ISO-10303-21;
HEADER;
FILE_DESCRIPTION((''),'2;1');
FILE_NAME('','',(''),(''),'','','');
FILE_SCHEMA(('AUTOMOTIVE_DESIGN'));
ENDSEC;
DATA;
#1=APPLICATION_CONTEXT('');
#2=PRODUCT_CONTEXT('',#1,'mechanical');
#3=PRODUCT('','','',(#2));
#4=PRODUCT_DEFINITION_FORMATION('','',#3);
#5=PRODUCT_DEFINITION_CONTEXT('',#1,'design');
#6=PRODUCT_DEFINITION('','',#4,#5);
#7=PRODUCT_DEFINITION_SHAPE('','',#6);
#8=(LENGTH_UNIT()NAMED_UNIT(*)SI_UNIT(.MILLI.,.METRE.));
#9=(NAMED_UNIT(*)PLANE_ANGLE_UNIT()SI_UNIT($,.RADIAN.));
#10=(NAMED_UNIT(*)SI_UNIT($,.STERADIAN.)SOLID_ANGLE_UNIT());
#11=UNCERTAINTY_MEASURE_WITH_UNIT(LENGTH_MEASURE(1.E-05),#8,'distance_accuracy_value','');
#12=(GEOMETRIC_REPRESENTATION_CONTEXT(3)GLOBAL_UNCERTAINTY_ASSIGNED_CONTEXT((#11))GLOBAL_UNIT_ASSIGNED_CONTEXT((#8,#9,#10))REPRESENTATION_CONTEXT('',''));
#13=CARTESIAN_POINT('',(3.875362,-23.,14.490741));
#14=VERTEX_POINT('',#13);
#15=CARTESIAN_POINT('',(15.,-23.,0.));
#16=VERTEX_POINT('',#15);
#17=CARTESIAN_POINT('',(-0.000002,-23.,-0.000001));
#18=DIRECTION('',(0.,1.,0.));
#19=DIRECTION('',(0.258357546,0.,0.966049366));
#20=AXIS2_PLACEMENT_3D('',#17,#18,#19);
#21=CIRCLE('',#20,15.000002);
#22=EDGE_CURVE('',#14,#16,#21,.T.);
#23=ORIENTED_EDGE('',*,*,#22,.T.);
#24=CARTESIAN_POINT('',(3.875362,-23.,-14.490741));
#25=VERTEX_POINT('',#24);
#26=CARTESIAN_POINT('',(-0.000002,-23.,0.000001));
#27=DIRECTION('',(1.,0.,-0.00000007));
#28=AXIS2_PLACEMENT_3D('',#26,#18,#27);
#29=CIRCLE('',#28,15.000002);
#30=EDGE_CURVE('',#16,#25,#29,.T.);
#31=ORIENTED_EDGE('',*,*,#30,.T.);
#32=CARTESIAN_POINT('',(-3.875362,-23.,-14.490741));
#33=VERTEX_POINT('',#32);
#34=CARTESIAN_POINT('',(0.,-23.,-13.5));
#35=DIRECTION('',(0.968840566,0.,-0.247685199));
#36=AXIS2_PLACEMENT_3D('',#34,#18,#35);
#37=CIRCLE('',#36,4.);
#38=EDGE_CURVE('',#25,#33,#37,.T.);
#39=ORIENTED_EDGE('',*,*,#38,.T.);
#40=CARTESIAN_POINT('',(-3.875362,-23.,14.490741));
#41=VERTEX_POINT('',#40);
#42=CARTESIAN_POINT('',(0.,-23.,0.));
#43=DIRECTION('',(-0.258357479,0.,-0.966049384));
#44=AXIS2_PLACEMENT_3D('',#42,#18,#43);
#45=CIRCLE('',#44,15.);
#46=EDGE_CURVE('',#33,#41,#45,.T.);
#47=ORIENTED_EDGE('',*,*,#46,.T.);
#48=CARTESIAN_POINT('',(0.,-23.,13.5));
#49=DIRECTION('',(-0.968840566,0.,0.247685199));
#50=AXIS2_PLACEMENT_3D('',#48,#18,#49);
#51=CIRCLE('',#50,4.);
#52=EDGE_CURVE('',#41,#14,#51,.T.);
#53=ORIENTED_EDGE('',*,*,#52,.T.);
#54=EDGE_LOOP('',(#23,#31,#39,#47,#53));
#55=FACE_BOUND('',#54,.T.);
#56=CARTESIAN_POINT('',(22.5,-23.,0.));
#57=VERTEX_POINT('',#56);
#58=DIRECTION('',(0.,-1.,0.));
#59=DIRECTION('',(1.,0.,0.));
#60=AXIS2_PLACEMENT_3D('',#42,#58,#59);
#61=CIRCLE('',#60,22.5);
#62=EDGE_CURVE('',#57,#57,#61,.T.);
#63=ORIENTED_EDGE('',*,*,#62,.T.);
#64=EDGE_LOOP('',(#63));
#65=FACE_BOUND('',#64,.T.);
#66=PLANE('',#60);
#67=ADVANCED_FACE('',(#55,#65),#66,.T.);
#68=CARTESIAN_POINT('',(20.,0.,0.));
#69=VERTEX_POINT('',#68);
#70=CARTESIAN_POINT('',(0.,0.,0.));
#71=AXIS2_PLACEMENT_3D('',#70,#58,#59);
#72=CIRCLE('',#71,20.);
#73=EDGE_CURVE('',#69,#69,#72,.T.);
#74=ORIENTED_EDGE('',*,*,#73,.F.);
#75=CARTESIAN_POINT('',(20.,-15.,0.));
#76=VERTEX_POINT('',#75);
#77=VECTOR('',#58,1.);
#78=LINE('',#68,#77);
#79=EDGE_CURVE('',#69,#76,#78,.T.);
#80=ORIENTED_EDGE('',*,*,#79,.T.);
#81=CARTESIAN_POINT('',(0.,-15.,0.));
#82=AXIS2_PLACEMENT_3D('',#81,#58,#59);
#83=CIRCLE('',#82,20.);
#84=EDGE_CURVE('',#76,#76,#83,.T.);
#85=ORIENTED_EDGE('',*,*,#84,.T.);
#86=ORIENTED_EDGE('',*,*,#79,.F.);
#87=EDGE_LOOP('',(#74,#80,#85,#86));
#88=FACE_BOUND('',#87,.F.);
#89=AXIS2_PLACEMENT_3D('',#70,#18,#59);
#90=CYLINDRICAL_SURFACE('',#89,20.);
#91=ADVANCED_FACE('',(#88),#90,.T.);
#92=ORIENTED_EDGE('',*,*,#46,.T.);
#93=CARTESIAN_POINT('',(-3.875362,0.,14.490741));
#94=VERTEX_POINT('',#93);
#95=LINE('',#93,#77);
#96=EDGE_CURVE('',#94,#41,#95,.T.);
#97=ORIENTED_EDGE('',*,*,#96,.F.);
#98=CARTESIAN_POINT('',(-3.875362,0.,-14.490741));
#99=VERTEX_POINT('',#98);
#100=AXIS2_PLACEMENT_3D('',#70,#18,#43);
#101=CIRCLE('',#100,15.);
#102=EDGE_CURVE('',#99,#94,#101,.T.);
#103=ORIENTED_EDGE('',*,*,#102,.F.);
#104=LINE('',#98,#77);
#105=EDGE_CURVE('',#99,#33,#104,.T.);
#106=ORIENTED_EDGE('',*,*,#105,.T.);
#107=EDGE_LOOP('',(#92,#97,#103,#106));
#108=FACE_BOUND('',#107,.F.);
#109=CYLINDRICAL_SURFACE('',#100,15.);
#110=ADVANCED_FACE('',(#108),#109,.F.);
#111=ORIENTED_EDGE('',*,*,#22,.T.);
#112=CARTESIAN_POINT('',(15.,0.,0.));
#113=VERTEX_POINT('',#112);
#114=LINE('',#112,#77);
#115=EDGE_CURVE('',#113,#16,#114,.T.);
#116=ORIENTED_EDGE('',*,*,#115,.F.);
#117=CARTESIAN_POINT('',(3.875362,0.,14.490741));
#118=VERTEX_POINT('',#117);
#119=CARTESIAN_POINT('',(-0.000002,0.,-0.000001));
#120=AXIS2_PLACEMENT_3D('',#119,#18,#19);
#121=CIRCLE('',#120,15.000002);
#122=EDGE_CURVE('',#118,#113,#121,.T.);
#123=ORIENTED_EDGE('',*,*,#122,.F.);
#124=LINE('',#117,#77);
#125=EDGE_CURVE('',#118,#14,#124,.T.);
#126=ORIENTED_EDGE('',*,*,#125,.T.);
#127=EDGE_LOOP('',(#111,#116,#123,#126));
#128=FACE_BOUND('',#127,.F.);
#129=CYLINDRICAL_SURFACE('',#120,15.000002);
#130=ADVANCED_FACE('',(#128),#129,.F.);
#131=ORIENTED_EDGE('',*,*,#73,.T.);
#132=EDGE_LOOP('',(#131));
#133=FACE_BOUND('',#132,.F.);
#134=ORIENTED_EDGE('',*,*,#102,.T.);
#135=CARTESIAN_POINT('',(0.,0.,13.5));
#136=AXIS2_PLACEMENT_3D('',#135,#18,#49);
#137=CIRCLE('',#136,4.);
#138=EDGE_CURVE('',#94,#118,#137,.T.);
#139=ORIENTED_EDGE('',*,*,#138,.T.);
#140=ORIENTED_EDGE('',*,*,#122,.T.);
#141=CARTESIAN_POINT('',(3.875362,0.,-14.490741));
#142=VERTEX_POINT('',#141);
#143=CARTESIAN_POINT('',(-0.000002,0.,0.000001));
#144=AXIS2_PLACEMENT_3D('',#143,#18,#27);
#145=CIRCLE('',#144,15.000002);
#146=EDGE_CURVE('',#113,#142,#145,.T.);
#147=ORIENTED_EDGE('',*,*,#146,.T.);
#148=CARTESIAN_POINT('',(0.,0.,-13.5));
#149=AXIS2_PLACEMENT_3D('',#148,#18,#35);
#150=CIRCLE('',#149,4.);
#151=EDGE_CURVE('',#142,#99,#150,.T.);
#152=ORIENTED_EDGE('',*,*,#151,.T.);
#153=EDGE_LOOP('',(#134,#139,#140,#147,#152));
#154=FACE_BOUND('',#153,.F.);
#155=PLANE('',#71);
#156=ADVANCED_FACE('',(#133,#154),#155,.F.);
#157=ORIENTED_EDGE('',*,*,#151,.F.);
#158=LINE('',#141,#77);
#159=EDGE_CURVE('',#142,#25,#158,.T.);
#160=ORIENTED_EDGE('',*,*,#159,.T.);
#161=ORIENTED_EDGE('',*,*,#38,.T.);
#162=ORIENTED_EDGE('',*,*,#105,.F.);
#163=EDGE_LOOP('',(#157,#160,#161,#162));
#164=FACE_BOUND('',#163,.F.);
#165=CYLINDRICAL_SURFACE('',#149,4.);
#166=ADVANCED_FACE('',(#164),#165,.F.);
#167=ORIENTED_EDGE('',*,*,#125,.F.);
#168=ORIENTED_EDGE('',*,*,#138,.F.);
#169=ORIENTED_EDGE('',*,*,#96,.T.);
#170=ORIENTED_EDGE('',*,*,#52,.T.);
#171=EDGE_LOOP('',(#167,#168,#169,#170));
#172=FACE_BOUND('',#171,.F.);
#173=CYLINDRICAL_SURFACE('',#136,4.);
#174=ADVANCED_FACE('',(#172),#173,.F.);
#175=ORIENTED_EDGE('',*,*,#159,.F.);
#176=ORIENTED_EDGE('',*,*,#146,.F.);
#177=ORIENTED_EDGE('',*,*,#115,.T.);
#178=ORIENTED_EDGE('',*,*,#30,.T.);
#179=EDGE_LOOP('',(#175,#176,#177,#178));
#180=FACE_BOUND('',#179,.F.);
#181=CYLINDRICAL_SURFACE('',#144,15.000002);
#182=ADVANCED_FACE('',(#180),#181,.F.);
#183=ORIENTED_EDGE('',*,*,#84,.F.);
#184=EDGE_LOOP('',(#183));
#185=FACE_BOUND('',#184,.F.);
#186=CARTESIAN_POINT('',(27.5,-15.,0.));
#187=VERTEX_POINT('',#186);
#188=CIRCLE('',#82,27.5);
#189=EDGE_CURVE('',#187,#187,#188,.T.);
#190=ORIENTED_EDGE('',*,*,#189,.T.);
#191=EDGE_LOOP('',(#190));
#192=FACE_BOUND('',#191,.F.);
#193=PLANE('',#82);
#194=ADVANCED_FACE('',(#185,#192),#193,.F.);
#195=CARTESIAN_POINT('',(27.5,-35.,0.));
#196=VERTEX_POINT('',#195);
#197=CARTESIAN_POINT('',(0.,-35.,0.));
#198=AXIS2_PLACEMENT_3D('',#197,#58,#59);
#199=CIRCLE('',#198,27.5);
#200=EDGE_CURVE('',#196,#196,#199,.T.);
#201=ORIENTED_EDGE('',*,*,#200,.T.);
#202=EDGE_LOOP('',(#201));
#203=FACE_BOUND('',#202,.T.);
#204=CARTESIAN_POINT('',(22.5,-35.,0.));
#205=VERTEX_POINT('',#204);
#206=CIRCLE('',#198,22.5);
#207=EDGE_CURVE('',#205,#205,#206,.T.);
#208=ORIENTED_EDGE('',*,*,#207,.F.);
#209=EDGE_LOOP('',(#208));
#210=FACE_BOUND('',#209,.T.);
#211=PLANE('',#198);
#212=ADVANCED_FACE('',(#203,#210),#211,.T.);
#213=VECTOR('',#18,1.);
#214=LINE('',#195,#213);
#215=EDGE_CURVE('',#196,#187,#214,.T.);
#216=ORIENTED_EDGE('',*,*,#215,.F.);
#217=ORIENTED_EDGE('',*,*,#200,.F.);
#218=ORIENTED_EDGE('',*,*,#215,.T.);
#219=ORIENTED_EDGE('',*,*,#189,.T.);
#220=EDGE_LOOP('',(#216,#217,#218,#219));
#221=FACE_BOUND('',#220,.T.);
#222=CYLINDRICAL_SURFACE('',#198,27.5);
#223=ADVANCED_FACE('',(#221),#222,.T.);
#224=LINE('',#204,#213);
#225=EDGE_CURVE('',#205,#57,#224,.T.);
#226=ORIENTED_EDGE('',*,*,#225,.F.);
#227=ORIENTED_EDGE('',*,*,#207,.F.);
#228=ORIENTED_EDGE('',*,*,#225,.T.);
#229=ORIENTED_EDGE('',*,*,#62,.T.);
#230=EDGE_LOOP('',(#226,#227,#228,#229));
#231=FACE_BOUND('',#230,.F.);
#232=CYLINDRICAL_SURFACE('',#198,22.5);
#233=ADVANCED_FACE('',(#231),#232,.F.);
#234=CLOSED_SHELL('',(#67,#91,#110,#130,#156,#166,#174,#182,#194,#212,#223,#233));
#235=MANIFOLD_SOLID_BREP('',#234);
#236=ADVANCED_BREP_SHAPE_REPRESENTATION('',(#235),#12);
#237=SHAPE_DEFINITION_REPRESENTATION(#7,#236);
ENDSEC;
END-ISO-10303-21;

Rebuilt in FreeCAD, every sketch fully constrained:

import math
import FreeCAD as App
import Part
import Sketcher

doc = App.newDocument("Part")
body = doc.addObject("PartDesign::Body", "Body")

sketch1 = doc.addObject("Sketcher::SketchObject", "Sketch")
body.addObject(sketch1)
sketch1.AttachmentSupport = (doc.XZ_Plane, [""])
sketch1.MapMode = "FlatFace"
sketch1.addGeometry(Part.Circle(App.Vector(0, 0, 0), App.Vector(0, 0, 1), 20), False)
sketch1.addGeometry(Part.ArcOfCircle(Part.Circle(App.Vector(0, 13.5, 0), App.Vector(0, 0, 1), 4), math.radians(14.340576), math.radians(165.659424)), False)
sketch1.addGeometry(Part.ArcOfCircle(Part.Circle(App.Vector(-0.000002, -0.000001, 0), App.Vector(0, 0, 1), 15.000002), math.radians(0.000004), math.radians(75.027373)), False)
sketch1.addGeometry(Part.ArcOfCircle(Part.Circle(App.Vector(-0.000002, 0.000001, 0), App.Vector(0, 0, 1), 15.000002), math.radians(-75.027373), math.radians(-0.000004)), False)
sketch1.addGeometry(Part.ArcOfCircle(Part.Circle(App.Vector(0, -13.5, 0), App.Vector(0, 0, 1), 4), math.radians(-165.659424), math.radians(-14.340576)), False)
sketch1.addGeometry(Part.ArcOfCircle(Part.Circle(App.Vector(0, 0, 0), App.Vector(0, 0, 1), 15), math.radians(104.972623), math.radians(255.027377)), False)
sketch1.addConstraint(Sketcher.Constraint("Coincident", 1, 1, 2, 2))
sketch1.addConstraint(Sketcher.Constraint("Tangent", 2, 1, 3, 2))
sketch1.addConstraint(Sketcher.Constraint("Coincident", 3, 1, 4, 2))
sketch1.addConstraint(Sketcher.Constraint("Coincident", 4, 1, 5, 2))
sketch1.addConstraint(Sketcher.Constraint("Coincident", 5, 1, 1, 2))
sketch1.addConstraint(Sketcher.Constraint("Coincident", 0, 3, -1, 1))
sketch1.addConstraint(Sketcher.Constraint("Coincident", 2, 3, -1, 1))
sketch1.addConstraint(Sketcher.Constraint("Coincident", 5, 3, -1, 1))
sketch1.addConstraint(Sketcher.Constraint("Equal", 2, 3))
sketch1.addConstraint(Sketcher.Constraint("Equal", 1, 4))
sketch1.addConstraint(Sketcher.Constraint("Equal", 3, 5))
sketch1.addConstraint(Sketcher.Constraint("Symmetric", 1, 3, 4, 3, -1, 1))
sketch1.addConstraint(Sketcher.Constraint("PointOnObject", 1, 3, -2))
sketch1.addConstraint(Sketcher.Constraint("PointOnObject", 2, 1, -1))
sketch1.addConstraint(Sketcher.Constraint("Diameter", 0, 40.0))
sketch1.addConstraint(Sketcher.Constraint("Radius", 1, 4.0))
sketch1.addConstraint(Sketcher.Constraint("Radius", 2, 15.000002))
sketch1.addConstraint(Sketcher.Constraint("DistanceY", 4, 3, 1, 3, 27.000001))
pad1 = doc.addObject("PartDesign::Pad", "Pad")
body.addObject(pad1)
pad1.Profile = sketch1
pad1.Length = 35

sketch2 = doc.addObject("Sketcher::SketchObject", "Sketch001")
body.addObject(sketch2)
sketch2.AttachmentSupport = (doc.XZ_Plane, [""])
sketch2.MapMode = "FlatFace"
sketch2.AttachmentOffset = App.Placement(App.Vector(0, 0, 35), App.Rotation())
sketch2.addGeometry(Part.Circle(App.Vector(0, 0, 0), App.Vector(0, 0, 1), 27.5), False)
sketch2.addGeometry(Part.Circle(App.Vector(0, 0, 0), App.Vector(0, 0, 1), 20), False)
sketch2.addConstraint(Sketcher.Constraint("Coincident", 0, 3, -1, 1))
sketch2.addConstraint(Sketcher.Constraint("Coincident", 1, 3, -1, 1))
sketch2.addConstraint(Sketcher.Constraint("Diameter", 0, 55.0))
sketch2.addConstraint(Sketcher.Constraint("Diameter", 1, 40.0))
pad2 = doc.addObject("PartDesign::Pad", "Pad001")
body.addObject(pad2)
pad2.Profile = sketch2
pad2.Length = 20
pad2.Reversed = True

sketch3 = doc.addObject("Sketcher::SketchObject", "Sketch002")
body.addObject(sketch3)
sketch3.AttachmentSupport = (doc.XZ_Plane, [""])
sketch3.MapMode = "FlatFace"
sketch3.AttachmentOffset = App.Placement(App.Vector(0, 0, 35), App.Rotation())
sketch3.addGeometry(Part.Circle(App.Vector(0, 0, 0), App.Vector(0, 0, 1), 22.5), False)
sketch3.addConstraint(Sketcher.Constraint("Coincident", 0, 3, -1, 1))
sketch3.addConstraint(Sketcher.Constraint("Diameter", 0, 45.0))
pocket1 = doc.addObject("PartDesign::Pocket", "Pocket")
body.addObject(pocket1)
pocket1.Profile = sketch3
pocket1.Length = 12

doc.recompute()
